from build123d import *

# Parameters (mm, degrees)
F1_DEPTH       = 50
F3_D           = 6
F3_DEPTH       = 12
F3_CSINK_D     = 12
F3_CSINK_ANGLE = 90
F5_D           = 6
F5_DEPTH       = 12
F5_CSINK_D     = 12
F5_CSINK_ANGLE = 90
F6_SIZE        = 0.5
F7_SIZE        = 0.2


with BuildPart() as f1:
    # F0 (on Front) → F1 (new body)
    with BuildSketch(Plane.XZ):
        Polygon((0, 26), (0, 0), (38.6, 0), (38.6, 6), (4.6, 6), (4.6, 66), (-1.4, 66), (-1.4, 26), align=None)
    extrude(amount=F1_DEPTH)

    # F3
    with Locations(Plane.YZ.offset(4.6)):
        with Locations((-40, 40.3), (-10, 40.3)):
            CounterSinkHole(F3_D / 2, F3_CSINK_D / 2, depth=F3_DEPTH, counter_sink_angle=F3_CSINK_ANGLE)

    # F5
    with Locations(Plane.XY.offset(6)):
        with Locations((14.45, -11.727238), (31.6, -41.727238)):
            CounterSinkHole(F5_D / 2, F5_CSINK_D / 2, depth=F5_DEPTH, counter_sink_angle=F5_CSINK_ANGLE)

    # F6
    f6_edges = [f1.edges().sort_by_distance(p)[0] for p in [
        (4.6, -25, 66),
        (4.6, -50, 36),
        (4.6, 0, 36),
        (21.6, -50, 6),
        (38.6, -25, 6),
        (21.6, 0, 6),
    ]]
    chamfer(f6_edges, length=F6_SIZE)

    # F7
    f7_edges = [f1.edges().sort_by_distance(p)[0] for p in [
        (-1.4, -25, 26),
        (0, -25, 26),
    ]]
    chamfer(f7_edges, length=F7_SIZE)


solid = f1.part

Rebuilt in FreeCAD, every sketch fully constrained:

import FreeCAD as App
import Part
import Sketcher


def edges_at(feature, points):
    """Names of the edges that pass closest to the given points."""
    edges = feature.Shape.Edges
    near = lambda p: min(range(len(edges)), key=lambda i: edges[i].distToShape(Part.Vertex(*p))[0])
    return sorted({f"Edge{near(p) + 1}" for p in points})


def add_polygon(sketch, points):
    """Adds a closed chain of lines whose ends are joined by coincident constraints."""
    first, n = sketch.GeometryCount, len(points)
    for a, b in zip(points, points[1:] + points[:1]):
        sketch.addGeometry(Part.LineSegment(App.Vector(*a, 0), App.Vector(*b, 0)), False)
    for i in range(n):
        sketch.addConstraint(Sketcher.Constraint("Coincident", first + i, 2, first + (i + 1) % n, 1))

doc = App.newDocument("Part")
body = doc.addObject("PartDesign::Body", "Body")

# Sketch on XZ plane
sketch1 = doc.addObject("Sketcher::SketchObject", "Sketch")
body.addObject(sketch1)
sketch1.AttachmentSupport = (doc.XZ_Plane, [""])
sketch1.MapMode = "FlatFace"
add_polygon(sketch1, [(0, 26), (0, 0), (38.6, 0), (38.6, 6), (4.6, 6), (4.6, 66), (-1.4, 66), (-1.4, 26)])  # lines 0-7
sketch1.addConstraint(Sketcher.Constraint("Vertical", 0))
sketch1.addConstraint(Sketcher.Constraint("Horizontal", 1))
sketch1.addConstraint(Sketcher.Constraint("Vertical", 2))
sketch1.addConstraint(Sketcher.Constraint("Horizontal", 3))
sketch1.addConstraint(Sketcher.Constraint("Vertical", 4))
sketch1.addConstraint(Sketcher.Constraint("Horizontal", 5))
sketch1.addConstraint(Sketcher.Constraint("Vertical", 6))
sketch1.addConstraint(Sketcher.Constraint("Horizontal", 7))
sketch1.addConstraint(Sketcher.Constraint("Coincident", 0, 2, -1, 1))
sketch1.addConstraint(Sketcher.Constraint("Equal", 5, 2))
sketch1.addConstraint(Sketcher.Constraint("DistanceX", 3, 2, 3, 1, 34.0))
sketch1.addConstraint(Sketcher.Constraint("DistanceX", 5, 2, 5, 1, 6.0))
sketch1.addConstraint(Sketcher.Constraint("DistanceY", 0, 2, 0, 1, 26.0))
sketch1.addConstraint(Sketcher.Constraint("DistanceY", 4, 1, 4, 2, 60.0))
sketch1.addConstraint(Sketcher.Constraint("DistanceX", 1, 1, 1, 2, 38.6))
pad1 = doc.addObject("PartDesign::Pad", "Pad")
body.addObject(pad1)
pad1.Profile = sketch1
pad1.Length = 50

# Sketch on YZ plane
sketch2 = doc.addObject("Sketcher::SketchObject", "Sketch001")
body.addObject(sketch2)
sketch2.AttachmentSupport = (doc.YZ_Plane, [""])
sketch2.MapMode = "FlatFace"
sketch2.AttachmentOffset = App.Placement(App.Vector(0, 0, 4.6), App.Rotation())
sketch2.addGeometry(Part.Circle(App.Vector(-40, 40.3, 0), App.Vector(0, 0, 1), 3), False)
sketch2.addGeometry(Part.Circle(App.Vector(-10, 40.3, 0), App.Vector(0, 0, 1), 3), False)
sketch2.addConstraint(Sketcher.Constraint("Equal", 0, 1))
sketch2.addConstraint(Sketcher.Constraint("Horizontal", 0, 3, 1, 3))
sketch2.addConstraint(Sketcher.Constraint("Diameter", 0, 6.0))
sketch2.addConstraint(Sketcher.Constraint("DistanceX", 0, 3, -1, 1, 40.0))
sketch2.addConstraint(Sketcher.Constraint("DistanceX", 1, 3, -1, 1, 10.0))
sketch2.addConstraint(Sketcher.Constraint("DistanceY", -1, 1, 0, 3, 40.3))
doc.recompute()
hole = doc.addObject("PartDesign::Hole", "Hole")
body.addObject(hole)
hole.Profile = sketch2
hole.ThreadType = "None"
hole.Diameter = 6
hole.DepthType = "Dimension"
hole.Depth = 12
hole.DrillPoint = "Flat"
hole.HoleCutType = "Countersink"
hole.HoleCutDiameter = 12
hole.HoleCutCountersinkAngle = 90

# Sketch on XY plane
sketch3 = doc.addObject("Sketcher::SketchObject", "Sketch002")
body.addObject(sketch3)
sketch3.AttachmentSupport = (doc.XY_Plane, [""])
sketch3.MapMode = "FlatFace"
sketch3.AttachmentOffset = App.Placement(App.Vector(0, 0, 6), App.Rotation())
sketch3.addGeometry(Part.Circle(App.Vector(14.4, -11.7, 0), App.Vector(0, 0, 1), 3), False)
sketch3.addGeometry(Part.Circle(App.Vector(31.6, -41.7, 0), App.Vector(0, 0, 1), 3), False)
sketch3.addConstraint(Sketcher.Constraint("Equal", 0, 1))
sketch3.addConstraint(Sketcher.Constraint("Diameter", 0, 6.0))
sketch3.addConstraint(Sketcher.Constraint("DistanceY", 1, 3, 0, 3, 30.0))
sketch3.addConstraint(Sketcher.Constraint("DistanceX", -1, 1, 1, 3, 31.6))
sketch3.addConstraint(Sketcher.Constraint("DistanceX", -1, 1, 0, 3, 14.45))
sketch3.addConstraint(Sketcher.Constraint("DistanceY", 0, 3, -1, 1, 11.727238))
doc.recompute()
hole2 = doc.addObject("PartDesign::Hole", "Hole001")
body.addObject(hole2)
hole2.Profile = sketch3
hole2.ThreadType = "None"
hole2.Diameter = 6
hole2.DepthType = "Dimension"
hole2.Depth = 12
hole2.DrillPoint = "Flat"
hole2.HoleCutType = "Countersink"
hole2.HoleCutDiameter = 12
hole2.HoleCutCountersinkAngle = 90
doc.recompute()

chamfer = doc.addObject("PartDesign::Chamfer", "Chamfer")
body.addObject(chamfer)
chamfer.Base = (hole2, edges_at(hole2, [
    (4.6, -25, 66),
    (4.6, -50, 36),
    (4.6, 0, 36),
    (21.6, -50, 6),
    (38.6, -25, 6),
    (21.6, 0, 6),
]))
chamfer.Size = 0.5
doc.recompute()

chamfer2 = doc.addObject("PartDesign::Chamfer", "Chamfer001")
body.addObject(chamfer2)
chamfer2.Base = (chamfer, edges_at(chamfer, [(-1.4, -25, 26), (0, -25, 26)]))
chamfer2.Size = 0.2

doc.recompute()
